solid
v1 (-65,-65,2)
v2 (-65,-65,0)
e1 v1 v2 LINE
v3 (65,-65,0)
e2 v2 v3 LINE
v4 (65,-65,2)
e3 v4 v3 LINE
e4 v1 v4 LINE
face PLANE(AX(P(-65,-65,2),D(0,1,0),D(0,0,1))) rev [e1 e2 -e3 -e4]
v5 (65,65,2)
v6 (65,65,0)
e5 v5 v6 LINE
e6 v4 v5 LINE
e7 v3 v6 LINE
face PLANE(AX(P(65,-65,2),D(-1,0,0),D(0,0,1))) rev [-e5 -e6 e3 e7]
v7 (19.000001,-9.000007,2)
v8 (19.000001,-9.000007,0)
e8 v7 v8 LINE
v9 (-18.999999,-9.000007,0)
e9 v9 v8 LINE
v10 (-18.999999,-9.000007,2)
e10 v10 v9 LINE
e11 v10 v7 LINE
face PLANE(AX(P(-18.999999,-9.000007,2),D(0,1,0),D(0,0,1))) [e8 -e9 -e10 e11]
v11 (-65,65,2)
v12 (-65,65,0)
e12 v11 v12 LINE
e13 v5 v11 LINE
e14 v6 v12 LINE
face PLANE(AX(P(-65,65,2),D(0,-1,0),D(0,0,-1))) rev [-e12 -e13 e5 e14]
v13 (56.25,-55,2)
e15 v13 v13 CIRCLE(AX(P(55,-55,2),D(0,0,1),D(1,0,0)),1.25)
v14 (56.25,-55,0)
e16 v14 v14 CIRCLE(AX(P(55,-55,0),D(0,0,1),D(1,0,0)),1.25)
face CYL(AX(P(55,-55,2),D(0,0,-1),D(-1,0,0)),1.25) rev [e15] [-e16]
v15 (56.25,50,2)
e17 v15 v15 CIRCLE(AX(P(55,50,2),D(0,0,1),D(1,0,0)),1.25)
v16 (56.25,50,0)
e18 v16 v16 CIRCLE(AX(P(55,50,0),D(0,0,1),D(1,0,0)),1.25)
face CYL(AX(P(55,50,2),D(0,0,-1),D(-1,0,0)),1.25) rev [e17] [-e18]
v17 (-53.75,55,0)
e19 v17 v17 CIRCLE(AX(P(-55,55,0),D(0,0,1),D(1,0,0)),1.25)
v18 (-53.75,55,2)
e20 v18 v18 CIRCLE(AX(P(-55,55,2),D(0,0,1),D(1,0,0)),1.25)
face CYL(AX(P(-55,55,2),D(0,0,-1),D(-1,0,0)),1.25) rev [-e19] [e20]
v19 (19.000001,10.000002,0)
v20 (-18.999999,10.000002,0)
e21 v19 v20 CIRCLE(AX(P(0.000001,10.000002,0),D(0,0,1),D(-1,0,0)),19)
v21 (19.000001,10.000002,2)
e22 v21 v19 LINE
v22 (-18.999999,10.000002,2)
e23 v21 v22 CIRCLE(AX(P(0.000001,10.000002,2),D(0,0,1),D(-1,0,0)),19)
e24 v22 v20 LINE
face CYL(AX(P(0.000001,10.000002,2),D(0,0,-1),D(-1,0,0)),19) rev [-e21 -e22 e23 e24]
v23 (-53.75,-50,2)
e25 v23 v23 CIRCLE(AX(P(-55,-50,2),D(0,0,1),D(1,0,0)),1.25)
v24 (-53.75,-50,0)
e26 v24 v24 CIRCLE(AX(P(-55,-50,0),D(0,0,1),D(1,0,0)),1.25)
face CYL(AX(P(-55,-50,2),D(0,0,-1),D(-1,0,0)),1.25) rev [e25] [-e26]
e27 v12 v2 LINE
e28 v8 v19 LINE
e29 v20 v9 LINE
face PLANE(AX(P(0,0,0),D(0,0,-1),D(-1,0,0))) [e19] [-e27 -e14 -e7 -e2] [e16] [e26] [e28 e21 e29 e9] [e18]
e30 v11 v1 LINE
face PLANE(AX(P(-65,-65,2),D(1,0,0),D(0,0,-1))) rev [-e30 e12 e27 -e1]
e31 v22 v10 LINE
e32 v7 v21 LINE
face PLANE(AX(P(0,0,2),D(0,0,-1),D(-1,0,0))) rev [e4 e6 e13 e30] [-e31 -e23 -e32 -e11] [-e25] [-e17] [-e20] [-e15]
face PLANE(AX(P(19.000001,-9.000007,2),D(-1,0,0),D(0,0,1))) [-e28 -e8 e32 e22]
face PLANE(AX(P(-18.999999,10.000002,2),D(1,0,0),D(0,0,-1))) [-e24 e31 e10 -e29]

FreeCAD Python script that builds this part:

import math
import FreeCAD as App
import Part
import Sketcher

doc = App.newDocument("Part")
params = doc.addObject("Spreadsheet::Sheet", "Params")
for row, (alias, value) in enumerate([
    ("sketch1_radius", "19 mm"),
    ("sketch1_diameter", "2.5 mm"),
    ("sketch1_width", "130 mm"),
    ("pad1_length", "2 mm"),
], start=1):
    params.set(f"A{row}", alias)
    params.set(f"B{row}", "=" + value)
    params.setAlias(f"B{row}", alias)

body = doc.addObject("PartDesign::Body", "Body")

# Sketch on XY plane
sketch1 = body.newObject("Sketcher::SketchObject", "Sketch")
sketch1.AttachmentSupport = (doc.getObject("XY_Plane"), [""])
sketch1.MapMode = "FlatFace"
sketch1.addGeometry(Part.LineSegment(App.Vector(-65, 65, 0), App.Vector(-65, -65, 0)), False)
sketch1.addGeometry(Part.LineSegment(App.Vector(-65, -65, 0), App.Vector(65, -65, 0)), False)
sketch1.addGeometry(Part.LineSegment(App.Vector(65, -65, 0), App.Vector(65, 65, 0)), False)
sketch1.addGeometry(Part.LineSegment(App.Vector(65, 65, 0), App.Vector(-65, 65, 0)), False)
sketch1.addGeometry(Part.Circle(App.Vector(-55, -50, 0), App.Vector(0, 0, 1), 1.2), False)
sketch1.addGeometry(Part.Circle(App.Vector(55, -55, 0), App.Vector(0, 0, 1), 1.2), False)
sketch1.addGeometry(Part.Circle(App.Vector(-55, 55, 0), App.Vector(0, 0, 1), 1.2), False)
sketch1.addGeometry(Part.LineSegment(App.Vector(-19, -9, 0), App.Vector(-19, 10, 0)), False)
sketch1.addGeometry(Part.ArcOfCircle(Part.Circle(App.Vector(0, 10, 0), App.Vector(0, 0, 1), 19), math.radians(0), math.radians(180)), False)
sketch1.addGeometry(Part.LineSegment(App.Vector(19, 10, 0), App.Vector(19, -9, 0)), False)
sketch1.addGeometry(Part.LineSegment(App.Vector(19, -9, 0), App.Vector(-19, -9, 0)), False)
sketch1.addGeometry(Part.Circle(App.Vector(55, 50, 0), App.Vector(0, 0, 1), 1.2), False)
sketch1.addConstraint(Sketcher.Constraint("Coincident", 0, 2, 1, 1))
sketch1.addConstraint(Sketcher.Constraint("Coincident", 1, 2, 2, 1))
sketch1.addConstraint(Sketcher.Constraint("Coincident", 2, 2, 3, 1))
sketch1.addConstraint(Sketcher.Constraint("Coincident", 3, 2, 0, 1))
sketch1.addConstraint(Sketcher.Constraint("Tangent", 7, 2, 8, 2))
sketch1.addConstraint(Sketcher.Constraint("Tangent", 8, 1, 9, 1))
sketch1.addConstraint(Sketcher.Constraint("Coincident", 9, 2, 10, 1))
sketch1.addConstraint(Sketcher.Constraint("Coincident", 10, 2, 7, 1))
sketch1.addConstraint(Sketcher.Constraint("Vertical", 0))
sketch1.addConstraint(Sketcher.Constraint("Horizontal", 1))
sketch1.addConstraint(Sketcher.Constraint("Vertical", 2))
sketch1.addConstraint(Sketcher.Constraint("Horizontal", 3))
sketch1.addConstraint(Sketcher.Constraint("Vertical", 7))
sketch1.addConstraint(Sketcher.Constraint("Vertical", 9))
sketch1.addConstraint(Sketcher.Constraint("Horizontal", 10))
sketch1.addConstraint(Sketcher.Constraint("Equal", 4, 5))
sketch1.addConstraint(Sketcher.Constraint("Equal", 5, 6))
sketch1.addConstraint(Sketcher.Constraint("Equal", 6, 11))
sketch1.addConstraint(Sketcher.Constraint("Symmetric", 5, 3, 6, 3, -1, 1))
sketch1.addConstraint(Sketcher.Constraint("Symmetric", 4, 3, 11, 3, -1, 1))
sketch1.addConstraint(Sketcher.Constraint("Symmetric", 0, 2, 2, 2, -1, 1))
sketch1.addConstraint(Sketcher.Constraint("PointOnObject", 8, 3, -2))
sketch1.addConstraint(Sketcher.Constraint("Vertical", 4, 3, 6, 3))
sketch1.addConstraint(Sketcher.Constraint("Equal", 3, 0))
sketch1.addConstraint(Sketcher.Constraint("Radius", 8, 19.0))
sketch1.addConstraint(Sketcher.Constraint("Diameter", 4, 2.5))
sketch1.addConstraint(Sketcher.Constraint("DistanceX", 1, 1, 1, 2, 130.0))
sketch1.addConstraint(Sketcher.Constraint("DistanceX", 4, 3, -1, 1, 55.0))
sketch1.addConstraint(Sketcher.Constraint("DistanceY", 4, 3, -1, 1, 50.0))
sketch1.addConstraint(Sketcher.Constraint("DistanceY", 5, 3, -1, 1, 55.0))
sketch1.addConstraint(Sketcher.Constraint("DistanceY", -1, 1, 8, 3, 10.000002))
sketch1.addConstraint(Sketcher.Constraint("DistanceY", 7, 1, 7, 2, 19.000009))
sketch1.setExpression("Constraints[24]", "Params.sketch1_radius")
sketch1.setExpression("Constraints[25]", "Params.sketch1_diameter")
sketch1.setExpression("Constraints[26]", "Params.sketch1_width")
pad1 = body.newObject("PartDesign::Pad", "Pad")
pad1.Profile = sketch1
pad1.setExpression("Length", "Params.pad1_length")

doc.recompute()
